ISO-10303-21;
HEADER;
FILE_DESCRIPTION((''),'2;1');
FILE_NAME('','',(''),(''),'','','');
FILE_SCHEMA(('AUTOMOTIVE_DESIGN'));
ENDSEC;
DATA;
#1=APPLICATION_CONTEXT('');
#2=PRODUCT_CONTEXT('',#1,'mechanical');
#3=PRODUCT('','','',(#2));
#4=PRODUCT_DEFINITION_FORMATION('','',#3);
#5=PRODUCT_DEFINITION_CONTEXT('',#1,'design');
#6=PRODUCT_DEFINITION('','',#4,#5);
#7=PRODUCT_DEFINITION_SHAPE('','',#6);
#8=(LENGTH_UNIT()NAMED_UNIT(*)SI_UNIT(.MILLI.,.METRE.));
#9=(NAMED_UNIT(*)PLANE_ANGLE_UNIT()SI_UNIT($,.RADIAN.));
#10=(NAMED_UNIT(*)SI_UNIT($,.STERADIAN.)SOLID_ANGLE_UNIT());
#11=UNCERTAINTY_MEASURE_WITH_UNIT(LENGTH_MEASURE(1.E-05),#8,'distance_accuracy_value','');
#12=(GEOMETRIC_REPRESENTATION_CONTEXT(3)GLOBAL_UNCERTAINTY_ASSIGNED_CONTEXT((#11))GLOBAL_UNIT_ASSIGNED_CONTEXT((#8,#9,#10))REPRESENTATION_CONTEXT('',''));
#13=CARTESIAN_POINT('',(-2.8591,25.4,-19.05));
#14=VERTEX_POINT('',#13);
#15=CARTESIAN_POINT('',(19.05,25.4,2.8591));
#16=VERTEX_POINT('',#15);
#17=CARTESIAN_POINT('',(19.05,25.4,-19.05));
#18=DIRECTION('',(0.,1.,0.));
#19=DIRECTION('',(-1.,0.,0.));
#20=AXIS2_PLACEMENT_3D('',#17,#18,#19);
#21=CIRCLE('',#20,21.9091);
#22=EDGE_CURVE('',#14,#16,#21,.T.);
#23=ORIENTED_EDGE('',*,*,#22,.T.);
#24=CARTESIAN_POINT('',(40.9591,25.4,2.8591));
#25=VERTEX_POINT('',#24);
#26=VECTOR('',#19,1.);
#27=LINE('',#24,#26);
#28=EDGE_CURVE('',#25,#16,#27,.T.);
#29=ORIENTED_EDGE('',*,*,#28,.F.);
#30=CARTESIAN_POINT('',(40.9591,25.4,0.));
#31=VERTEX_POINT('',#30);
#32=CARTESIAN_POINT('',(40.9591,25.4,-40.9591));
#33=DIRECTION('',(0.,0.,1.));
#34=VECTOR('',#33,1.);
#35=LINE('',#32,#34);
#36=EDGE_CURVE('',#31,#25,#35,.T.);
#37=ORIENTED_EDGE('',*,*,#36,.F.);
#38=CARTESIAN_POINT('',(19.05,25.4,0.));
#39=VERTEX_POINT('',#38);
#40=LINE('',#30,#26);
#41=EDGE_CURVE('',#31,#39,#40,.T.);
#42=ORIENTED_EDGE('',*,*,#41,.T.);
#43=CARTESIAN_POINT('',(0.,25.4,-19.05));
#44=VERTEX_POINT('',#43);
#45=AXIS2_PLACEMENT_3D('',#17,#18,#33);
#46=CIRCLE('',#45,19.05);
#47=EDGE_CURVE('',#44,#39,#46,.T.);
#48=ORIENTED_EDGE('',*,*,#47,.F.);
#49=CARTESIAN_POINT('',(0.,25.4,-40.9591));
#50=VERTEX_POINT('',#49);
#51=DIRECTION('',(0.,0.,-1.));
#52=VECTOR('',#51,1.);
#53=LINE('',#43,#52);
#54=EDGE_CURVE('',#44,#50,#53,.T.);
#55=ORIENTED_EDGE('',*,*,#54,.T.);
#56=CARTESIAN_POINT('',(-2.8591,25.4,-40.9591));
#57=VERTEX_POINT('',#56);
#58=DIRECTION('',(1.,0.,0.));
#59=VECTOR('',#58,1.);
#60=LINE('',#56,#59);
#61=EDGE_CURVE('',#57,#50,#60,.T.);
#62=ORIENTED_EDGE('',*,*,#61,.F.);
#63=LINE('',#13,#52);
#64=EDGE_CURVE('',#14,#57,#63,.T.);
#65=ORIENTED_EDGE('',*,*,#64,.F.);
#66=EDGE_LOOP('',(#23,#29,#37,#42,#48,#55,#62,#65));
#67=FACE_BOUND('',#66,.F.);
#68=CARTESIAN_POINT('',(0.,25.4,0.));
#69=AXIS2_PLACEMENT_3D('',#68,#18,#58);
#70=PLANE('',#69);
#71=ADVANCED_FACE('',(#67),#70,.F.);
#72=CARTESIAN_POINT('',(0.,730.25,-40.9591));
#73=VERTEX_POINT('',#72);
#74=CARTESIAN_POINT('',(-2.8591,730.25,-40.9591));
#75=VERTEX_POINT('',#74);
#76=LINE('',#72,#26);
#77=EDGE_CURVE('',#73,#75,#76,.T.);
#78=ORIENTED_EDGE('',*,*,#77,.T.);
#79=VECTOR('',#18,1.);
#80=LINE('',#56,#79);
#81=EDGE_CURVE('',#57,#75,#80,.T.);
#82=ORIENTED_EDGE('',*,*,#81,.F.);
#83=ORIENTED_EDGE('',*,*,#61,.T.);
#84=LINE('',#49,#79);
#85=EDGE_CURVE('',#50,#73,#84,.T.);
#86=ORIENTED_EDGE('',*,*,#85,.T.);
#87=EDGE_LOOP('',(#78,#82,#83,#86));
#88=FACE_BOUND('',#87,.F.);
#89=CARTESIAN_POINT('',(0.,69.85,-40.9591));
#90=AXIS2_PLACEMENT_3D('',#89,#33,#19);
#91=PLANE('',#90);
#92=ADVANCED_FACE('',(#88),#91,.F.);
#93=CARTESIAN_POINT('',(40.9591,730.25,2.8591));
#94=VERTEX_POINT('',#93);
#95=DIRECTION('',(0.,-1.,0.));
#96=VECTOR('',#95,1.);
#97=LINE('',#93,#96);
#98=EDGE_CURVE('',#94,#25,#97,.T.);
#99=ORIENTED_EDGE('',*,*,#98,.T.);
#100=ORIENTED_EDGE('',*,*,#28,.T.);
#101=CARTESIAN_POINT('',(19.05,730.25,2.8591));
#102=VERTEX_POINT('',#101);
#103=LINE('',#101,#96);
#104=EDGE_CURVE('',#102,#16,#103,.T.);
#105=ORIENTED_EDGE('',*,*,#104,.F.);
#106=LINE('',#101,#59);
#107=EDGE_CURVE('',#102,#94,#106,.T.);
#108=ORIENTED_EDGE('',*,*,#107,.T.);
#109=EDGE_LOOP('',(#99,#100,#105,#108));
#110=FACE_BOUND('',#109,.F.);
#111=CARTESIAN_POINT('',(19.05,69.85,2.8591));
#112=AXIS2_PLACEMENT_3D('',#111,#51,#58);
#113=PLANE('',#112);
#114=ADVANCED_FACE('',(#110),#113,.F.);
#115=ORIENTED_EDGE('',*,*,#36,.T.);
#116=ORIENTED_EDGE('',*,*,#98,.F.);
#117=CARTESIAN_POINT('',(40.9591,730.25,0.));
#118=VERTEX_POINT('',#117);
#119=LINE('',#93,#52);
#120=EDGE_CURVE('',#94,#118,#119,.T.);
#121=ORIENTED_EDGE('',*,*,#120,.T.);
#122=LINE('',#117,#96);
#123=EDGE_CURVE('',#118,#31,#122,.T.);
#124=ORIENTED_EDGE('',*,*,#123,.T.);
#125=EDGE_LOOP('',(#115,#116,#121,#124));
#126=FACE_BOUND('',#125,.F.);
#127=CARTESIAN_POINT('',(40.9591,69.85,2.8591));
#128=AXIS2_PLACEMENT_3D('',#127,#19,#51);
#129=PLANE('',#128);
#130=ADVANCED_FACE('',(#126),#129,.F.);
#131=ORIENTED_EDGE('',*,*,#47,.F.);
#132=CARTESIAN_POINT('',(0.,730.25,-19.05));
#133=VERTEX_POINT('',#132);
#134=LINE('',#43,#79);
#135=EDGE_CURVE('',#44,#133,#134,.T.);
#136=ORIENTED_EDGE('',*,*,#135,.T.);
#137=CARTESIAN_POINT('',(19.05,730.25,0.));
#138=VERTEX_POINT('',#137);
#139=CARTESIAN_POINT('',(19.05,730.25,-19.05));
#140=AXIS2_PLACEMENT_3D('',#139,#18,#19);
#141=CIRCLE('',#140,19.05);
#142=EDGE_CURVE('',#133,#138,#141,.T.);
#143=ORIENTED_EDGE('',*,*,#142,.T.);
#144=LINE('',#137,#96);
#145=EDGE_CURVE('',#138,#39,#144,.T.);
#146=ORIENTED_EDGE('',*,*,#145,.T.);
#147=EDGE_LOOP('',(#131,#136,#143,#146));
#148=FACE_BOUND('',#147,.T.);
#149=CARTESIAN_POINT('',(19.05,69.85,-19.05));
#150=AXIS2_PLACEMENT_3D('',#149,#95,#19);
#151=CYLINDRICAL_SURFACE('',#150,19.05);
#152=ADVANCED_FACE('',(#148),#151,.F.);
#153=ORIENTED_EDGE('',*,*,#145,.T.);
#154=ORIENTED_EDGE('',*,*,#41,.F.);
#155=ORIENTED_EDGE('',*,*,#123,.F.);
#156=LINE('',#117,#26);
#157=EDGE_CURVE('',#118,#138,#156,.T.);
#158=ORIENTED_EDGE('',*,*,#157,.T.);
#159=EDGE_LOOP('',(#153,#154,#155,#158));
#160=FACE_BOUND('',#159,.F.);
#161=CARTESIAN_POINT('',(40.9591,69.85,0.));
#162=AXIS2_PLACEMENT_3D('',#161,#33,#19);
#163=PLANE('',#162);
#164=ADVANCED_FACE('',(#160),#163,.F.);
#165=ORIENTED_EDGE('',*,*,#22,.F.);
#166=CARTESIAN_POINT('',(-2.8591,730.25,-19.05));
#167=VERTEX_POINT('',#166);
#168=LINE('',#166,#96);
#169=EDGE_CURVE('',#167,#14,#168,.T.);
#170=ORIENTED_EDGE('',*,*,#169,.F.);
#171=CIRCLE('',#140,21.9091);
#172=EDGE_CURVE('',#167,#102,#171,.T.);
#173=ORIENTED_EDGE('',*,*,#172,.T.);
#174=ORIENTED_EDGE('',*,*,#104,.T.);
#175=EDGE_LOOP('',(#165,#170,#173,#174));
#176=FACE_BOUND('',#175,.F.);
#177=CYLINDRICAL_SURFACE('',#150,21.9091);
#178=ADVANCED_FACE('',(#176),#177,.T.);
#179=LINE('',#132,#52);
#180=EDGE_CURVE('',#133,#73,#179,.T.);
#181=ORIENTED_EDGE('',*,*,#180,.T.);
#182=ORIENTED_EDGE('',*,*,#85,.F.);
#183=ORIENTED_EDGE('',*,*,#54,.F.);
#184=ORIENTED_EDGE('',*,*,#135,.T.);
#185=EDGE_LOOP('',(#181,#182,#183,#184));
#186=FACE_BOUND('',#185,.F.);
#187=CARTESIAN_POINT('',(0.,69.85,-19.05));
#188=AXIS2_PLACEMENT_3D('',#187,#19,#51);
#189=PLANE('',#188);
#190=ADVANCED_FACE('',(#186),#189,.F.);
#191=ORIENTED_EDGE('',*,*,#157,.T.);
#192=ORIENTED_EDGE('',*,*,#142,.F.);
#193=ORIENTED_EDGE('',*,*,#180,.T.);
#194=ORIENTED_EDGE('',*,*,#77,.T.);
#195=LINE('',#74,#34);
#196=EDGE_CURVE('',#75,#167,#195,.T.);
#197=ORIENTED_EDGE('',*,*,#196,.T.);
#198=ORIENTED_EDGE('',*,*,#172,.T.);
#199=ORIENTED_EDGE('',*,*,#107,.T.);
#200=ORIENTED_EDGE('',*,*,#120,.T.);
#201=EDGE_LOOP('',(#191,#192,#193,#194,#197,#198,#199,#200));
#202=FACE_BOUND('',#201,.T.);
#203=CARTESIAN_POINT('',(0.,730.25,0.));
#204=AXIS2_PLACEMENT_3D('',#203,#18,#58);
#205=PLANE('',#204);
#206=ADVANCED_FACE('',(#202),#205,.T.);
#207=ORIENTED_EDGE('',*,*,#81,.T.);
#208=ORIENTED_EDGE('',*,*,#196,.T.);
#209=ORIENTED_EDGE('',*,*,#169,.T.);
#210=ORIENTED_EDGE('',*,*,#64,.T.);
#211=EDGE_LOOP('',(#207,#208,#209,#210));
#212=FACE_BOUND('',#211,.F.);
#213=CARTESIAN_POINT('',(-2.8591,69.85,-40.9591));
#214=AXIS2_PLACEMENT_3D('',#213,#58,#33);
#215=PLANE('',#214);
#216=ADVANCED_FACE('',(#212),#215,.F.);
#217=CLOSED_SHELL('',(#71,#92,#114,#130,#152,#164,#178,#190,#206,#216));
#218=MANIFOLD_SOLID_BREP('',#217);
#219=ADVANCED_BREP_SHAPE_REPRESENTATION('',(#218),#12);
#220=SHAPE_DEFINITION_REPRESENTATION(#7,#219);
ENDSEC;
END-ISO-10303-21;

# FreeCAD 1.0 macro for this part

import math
import FreeCAD as App
import Part
import Sketcher

V = App.Vector
Q = App.Units.Quantity


def edges_at(feature, points):
    """Names of the edges that pass closest to the given points."""
    edges = feature.Shape.Edges
    near = lambda p: min(range(len(edges)), key=lambda i: edges[i].distToShape(Part.Vertex(*p))[0])
    return sorted({f"Edge{near(p) + 1}" for p in points})


def add_polygon(sketch, points):
    """Adds a closed chain of lines whose ends are joined by coincident constraints."""
    first, n = sketch.GeometryCount, len(points)
    for a, b in zip(points, points[1:] + points[:1]):
        sketch.addGeometry(Part.LineSegment(App.Vector(*a, 0), App.Vector(*b, 0)), False)
    for i in range(n):
        sketch.addConstraint(Sketcher.Constraint("Coincident", first + i, 2, first + (i + 1) % n, 1))

doc = App.newDocument("Part")
body = doc.addObject("PartDesign::Body", "Body")
body.AllowCompound = True

# Sketch on XZ plane
sketch1 = body.newObject("Sketcher::SketchObject", "Sketch")
sketch1.AttachmentSupport = (doc.getObject("XZ_Plane"), [""])
sketch1.MapMode = "FlatFace"
add_polygon(sketch1, [(0, -38), (0, 0), (38, 0), (38, -38)])  # lines 0-3
sketch1.addConstraint([
    Sketcher.Constraint("Vertical", 0),
    Sketcher.Constraint("Horizontal", 1),
    Sketcher.Constraint("Vertical", 2),
    Sketcher.Constraint("Horizontal", 3),
    Sketcher.Constraint("Coincident", 0, 2, -1, 1),
    Sketcher.Constraint("Equal", 3, 0),
    Sketcher.Constraint("DistanceX", 1, 1, 1, 2, Q("1.5 in")),
])
pad1 = body.newObject("PartDesign::Pad", "Pad")
pad1.Profile = sketch1
pad1.Length = Q("1 in")
pad1.Reversed = True
doc.recompute()

fillet = body.newObject("PartDesign::Fillet", "Fillet")
fillet.Base = (pad1, edges_at(pad1, [(0, 12.7, 0)]))
fillet.Radius = Q("0.75 in")

# Sketch on XZ plane
sketch2 = body.newObject("Sketcher::SketchObject", "Sketch001")
sketch2.AttachmentSupport = (doc.getObject("XZ_Plane"), [""])
sketch2.MapMode = "FlatFace"
sketch2.AttachmentOffset = App.Placement(V(0, 0, -1 * 25.4), App.Rotation())
sketch2.addGeometry([
    Part.ArcOfCircle(Part.Circle(V(19.1, -19.1, 0), V(0, 0, 1), 19.1), math.radians(90), math.radians(180)),  # 0
    Part.LineSegment(V(0, -19.1, 0), V(0, -41, 0)),  # 1
    Part.LineSegment(V(0, -41, 0), V(-2.9, -41, 0)),  # 2
    Part.LineSegment(V(-2.9, -41, 0), V(-2.9, -19.1, 0)),  # 3
    Part.ArcOfCircle(Part.Circle(V(19.1, -19.1, 0), V(0, 0, 1), 21.9), math.radians(90), math.radians(180)),  # 4
    Part.LineSegment(V(19.1, 2.9, 0), V(41, 2.9, 0)),  # 5
    Part.LineSegment(V(41, 2.9, 0), V(41, 0, 0)),  # 6
    Part.LineSegment(V(41, 0, 0), V(19.1, 0, 0)),  # 7
], False)
sketch2.addConstraint([
    Sketcher.Constraint("Tangent", 0, 2, 1, 1),
    Sketcher.Constraint("Coincident", 1, 2, 2, 1),
    Sketcher.Constraint("Coincident", 2, 2, 3, 1),
    Sketcher.Constraint("Tangent", 3, 2, 4, 2),
    Sketcher.Constraint("Tangent", 4, 1, 5, 1),
    Sketcher.Constraint("Coincident", 5, 2, 6, 1),
    Sketcher.Constraint("Coincident", 6, 2, 7, 1),
    Sketcher.Constraint("Tangent", 7, 2, 0, 1),
    Sketcher.Constraint("Vertical", 1),
    Sketcher.Constraint("Horizontal", 2),
    Sketcher.Constraint("Vertical", 3),
    Sketcher.Constraint("Horizontal", 5),
    Sketcher.Constraint("Vertical", 6),
    Sketcher.Constraint("Horizontal", 7),
    Sketcher.Constraint("Coincident", 4, 3, 0, 3),
    Sketcher.Constraint("PointOnObject", 0, 2, -2),
    Sketcher.Constraint("PointOnObject", 6, 2, -1),
    Sketcher.Constraint("Equal", 7, 1),
    Sketcher.Constraint("Radius", 0, Q("0.75 in")),
    Sketcher.Constraint("Radius", 4, Q("21.909 mm")),
    Sketcher.Constraint("DistanceX", 5, 1, 5, 2, Q("21.909 mm")),
])
pad2 = body.newObject("PartDesign::Pad", "Pad001")
pad2.Profile = sketch2
pad2.Length = Q("1.75 in")
pad2.Reversed = True

# Sketch on XZ plane
sketch3 = body.newObject("Sketcher::SketchObject", "Sketch002")
sketch3.AttachmentSupport = (doc.getObject("XZ_Plane"), [""])
sketch3.MapMode = "FlatFace"
sketch3.AttachmentOffset = App.Placement(V(0, 0, -1 * 25.4), App.Rotation())
sketch3.addGeometry([
    Part.LineSegment(V(0, -38, 0), V(0, -19, 0)),  # 0
    Part.ArcOfCircle(Part.Circle(V(19, -19, 0), V(0, 0, 1), 19), math.radians(90), math.radians(180)),  # 1
    Part.LineSegment(V(19, 0, 0), V(38, 0, 0)),  # 2
    Part.LineSegment(V(38, 0, 0), V(38, -38, 0)),  # 3
    Part.LineSegment(V(38, -38, 0), V(0, -38, 0)),  # 4
], False)
sketch3.addConstraint([
    Sketcher.Constraint("Tangent", 0, 2, 1, 2),
    Sketcher.Constraint("Tangent", 1, 1, 2, 1),
    Sketcher.Constraint("Coincident", 2, 2, 3, 1),
    Sketcher.Constraint("Coincident", 3, 2, 4, 1),
    Sketcher.Constraint("Coincident", 4, 2, 0, 1),
    Sketcher.Constraint("Vertical", 0),
    Sketcher.Constraint("Horizontal", 2),
    Sketcher.Constraint("Vertical", 3),
    Sketcher.Constraint("Horizontal", 4),
    Sketcher.Constraint("PointOnObject", 0, 2, -2),
    Sketcher.Constraint("PointOnObject", 1, 1, -1),
    Sketcher.Constraint("Equal", 2, 0),
    Sketcher.Constraint("Radius", 1, Q("0.75 in")),
    Sketcher.Constraint("DistanceX", 4, 2, 4, 1, Q("1.5 in")),
])
pocket1 = body.newObject("PartDesign::Pocket", "Pocket")
pocket1.Profile = sketch3
pocket1.Length = Q("1.75 in")
pocket1.Reversed = True

# Sketch on XZ plane
sketch4 = body.newObject("Sketcher::SketchObject", "Sketch003")
sketch4.AttachmentSupport = (doc.getObject("XZ_Plane"), [""])
sketch4.MapMode = "FlatFace"
sketch4.AttachmentOffset = App.Placement(V(0, 0, -2.75 * 25.4), App.Rotation())
sketch4.addGeometry([
    Part.ArcOfCircle(Part.Circle(V(19.1, -19.1, 0), V(0, 0, 1), 19.1), math.radians(90), math.radians(180)),  # 0
    Part.LineSegment(V(0, -19.1, 0), V(0, -41, 0)),  # 1
    Part.LineSegment(V(0, -41, 0), V(-2.9, -41, 0)),  # 2
    Part.LineSegment(V(-2.9, -41, 0), V(-2.9, -19.1, 0)),  # 3
    Part.ArcOfCircle(Part.Circle(V(19.1, -19.1, 0), V(0, 0, 1), 21.9), math.radians(90), math.radians(180)),  # 4
    Part.LineSegment(V(19.1, 2.9, 0), V(41, 2.9, 0)),  # 5
    Part.LineSegment(V(41, 2.9, 0), V(41, 0, 0)),  # 6
    Part.LineSegment(V(41, 0, 0), V(19.1, 0, 0)),  # 7
], False)
sketch4.addConstraint([
    Sketcher.Constraint("Tangent", 0, 2, 1, 1),
    Sketcher.Constraint("Coincident", 1, 2, 2, 1),
    Sketcher.Constraint("Coincident", 2, 2, 3, 1),
    Sketcher.Constraint("Tangent", 3, 2, 4, 2),
    Sketcher.Constraint("Tangent", 4, 1, 5, 1),
    Sketcher.Constraint("Coincident", 5, 2, 6, 1),
    Sketcher.Constraint("Coincident", 6, 2, 7, 1),
    Sketcher.Constraint("Tangent", 7, 2, 0, 1),
    Sketcher.Constraint("Vertical", 1),
    Sketcher.Constraint("Horizontal", 2),
    Sketcher.Constraint("Vertical", 3),
    Sketcher.Constraint("Horizontal", 5),
    Sketcher.Constraint("Vertical", 6),
    Sketcher.Constraint("Horizontal", 7),
    Sketcher.Constraint("Coincident", 4, 3, 0, 3),
    Sketcher.Constraint("PointOnObject", 0, 2, -2),
    Sketcher.Constraint("PointOnObject", 6, 2, -1),
    Sketcher.Constraint("Equal", 7, 1),
    Sketcher.Constraint("Radius", 0, Q("0.75 in")),
    Sketcher.Constraint("Radius", 4, Q("21.909 mm")),
    Sketcher.Constraint("DistanceX", 5, 1, 5, 2, Q("21.909 mm")),
])
pad3 = body.newObject("PartDesign::Pad", "Pad002")
pad3.Profile = sketch4
pad3.Length = Q("26 in")
pad3.Reversed = True

doc.recompute()
